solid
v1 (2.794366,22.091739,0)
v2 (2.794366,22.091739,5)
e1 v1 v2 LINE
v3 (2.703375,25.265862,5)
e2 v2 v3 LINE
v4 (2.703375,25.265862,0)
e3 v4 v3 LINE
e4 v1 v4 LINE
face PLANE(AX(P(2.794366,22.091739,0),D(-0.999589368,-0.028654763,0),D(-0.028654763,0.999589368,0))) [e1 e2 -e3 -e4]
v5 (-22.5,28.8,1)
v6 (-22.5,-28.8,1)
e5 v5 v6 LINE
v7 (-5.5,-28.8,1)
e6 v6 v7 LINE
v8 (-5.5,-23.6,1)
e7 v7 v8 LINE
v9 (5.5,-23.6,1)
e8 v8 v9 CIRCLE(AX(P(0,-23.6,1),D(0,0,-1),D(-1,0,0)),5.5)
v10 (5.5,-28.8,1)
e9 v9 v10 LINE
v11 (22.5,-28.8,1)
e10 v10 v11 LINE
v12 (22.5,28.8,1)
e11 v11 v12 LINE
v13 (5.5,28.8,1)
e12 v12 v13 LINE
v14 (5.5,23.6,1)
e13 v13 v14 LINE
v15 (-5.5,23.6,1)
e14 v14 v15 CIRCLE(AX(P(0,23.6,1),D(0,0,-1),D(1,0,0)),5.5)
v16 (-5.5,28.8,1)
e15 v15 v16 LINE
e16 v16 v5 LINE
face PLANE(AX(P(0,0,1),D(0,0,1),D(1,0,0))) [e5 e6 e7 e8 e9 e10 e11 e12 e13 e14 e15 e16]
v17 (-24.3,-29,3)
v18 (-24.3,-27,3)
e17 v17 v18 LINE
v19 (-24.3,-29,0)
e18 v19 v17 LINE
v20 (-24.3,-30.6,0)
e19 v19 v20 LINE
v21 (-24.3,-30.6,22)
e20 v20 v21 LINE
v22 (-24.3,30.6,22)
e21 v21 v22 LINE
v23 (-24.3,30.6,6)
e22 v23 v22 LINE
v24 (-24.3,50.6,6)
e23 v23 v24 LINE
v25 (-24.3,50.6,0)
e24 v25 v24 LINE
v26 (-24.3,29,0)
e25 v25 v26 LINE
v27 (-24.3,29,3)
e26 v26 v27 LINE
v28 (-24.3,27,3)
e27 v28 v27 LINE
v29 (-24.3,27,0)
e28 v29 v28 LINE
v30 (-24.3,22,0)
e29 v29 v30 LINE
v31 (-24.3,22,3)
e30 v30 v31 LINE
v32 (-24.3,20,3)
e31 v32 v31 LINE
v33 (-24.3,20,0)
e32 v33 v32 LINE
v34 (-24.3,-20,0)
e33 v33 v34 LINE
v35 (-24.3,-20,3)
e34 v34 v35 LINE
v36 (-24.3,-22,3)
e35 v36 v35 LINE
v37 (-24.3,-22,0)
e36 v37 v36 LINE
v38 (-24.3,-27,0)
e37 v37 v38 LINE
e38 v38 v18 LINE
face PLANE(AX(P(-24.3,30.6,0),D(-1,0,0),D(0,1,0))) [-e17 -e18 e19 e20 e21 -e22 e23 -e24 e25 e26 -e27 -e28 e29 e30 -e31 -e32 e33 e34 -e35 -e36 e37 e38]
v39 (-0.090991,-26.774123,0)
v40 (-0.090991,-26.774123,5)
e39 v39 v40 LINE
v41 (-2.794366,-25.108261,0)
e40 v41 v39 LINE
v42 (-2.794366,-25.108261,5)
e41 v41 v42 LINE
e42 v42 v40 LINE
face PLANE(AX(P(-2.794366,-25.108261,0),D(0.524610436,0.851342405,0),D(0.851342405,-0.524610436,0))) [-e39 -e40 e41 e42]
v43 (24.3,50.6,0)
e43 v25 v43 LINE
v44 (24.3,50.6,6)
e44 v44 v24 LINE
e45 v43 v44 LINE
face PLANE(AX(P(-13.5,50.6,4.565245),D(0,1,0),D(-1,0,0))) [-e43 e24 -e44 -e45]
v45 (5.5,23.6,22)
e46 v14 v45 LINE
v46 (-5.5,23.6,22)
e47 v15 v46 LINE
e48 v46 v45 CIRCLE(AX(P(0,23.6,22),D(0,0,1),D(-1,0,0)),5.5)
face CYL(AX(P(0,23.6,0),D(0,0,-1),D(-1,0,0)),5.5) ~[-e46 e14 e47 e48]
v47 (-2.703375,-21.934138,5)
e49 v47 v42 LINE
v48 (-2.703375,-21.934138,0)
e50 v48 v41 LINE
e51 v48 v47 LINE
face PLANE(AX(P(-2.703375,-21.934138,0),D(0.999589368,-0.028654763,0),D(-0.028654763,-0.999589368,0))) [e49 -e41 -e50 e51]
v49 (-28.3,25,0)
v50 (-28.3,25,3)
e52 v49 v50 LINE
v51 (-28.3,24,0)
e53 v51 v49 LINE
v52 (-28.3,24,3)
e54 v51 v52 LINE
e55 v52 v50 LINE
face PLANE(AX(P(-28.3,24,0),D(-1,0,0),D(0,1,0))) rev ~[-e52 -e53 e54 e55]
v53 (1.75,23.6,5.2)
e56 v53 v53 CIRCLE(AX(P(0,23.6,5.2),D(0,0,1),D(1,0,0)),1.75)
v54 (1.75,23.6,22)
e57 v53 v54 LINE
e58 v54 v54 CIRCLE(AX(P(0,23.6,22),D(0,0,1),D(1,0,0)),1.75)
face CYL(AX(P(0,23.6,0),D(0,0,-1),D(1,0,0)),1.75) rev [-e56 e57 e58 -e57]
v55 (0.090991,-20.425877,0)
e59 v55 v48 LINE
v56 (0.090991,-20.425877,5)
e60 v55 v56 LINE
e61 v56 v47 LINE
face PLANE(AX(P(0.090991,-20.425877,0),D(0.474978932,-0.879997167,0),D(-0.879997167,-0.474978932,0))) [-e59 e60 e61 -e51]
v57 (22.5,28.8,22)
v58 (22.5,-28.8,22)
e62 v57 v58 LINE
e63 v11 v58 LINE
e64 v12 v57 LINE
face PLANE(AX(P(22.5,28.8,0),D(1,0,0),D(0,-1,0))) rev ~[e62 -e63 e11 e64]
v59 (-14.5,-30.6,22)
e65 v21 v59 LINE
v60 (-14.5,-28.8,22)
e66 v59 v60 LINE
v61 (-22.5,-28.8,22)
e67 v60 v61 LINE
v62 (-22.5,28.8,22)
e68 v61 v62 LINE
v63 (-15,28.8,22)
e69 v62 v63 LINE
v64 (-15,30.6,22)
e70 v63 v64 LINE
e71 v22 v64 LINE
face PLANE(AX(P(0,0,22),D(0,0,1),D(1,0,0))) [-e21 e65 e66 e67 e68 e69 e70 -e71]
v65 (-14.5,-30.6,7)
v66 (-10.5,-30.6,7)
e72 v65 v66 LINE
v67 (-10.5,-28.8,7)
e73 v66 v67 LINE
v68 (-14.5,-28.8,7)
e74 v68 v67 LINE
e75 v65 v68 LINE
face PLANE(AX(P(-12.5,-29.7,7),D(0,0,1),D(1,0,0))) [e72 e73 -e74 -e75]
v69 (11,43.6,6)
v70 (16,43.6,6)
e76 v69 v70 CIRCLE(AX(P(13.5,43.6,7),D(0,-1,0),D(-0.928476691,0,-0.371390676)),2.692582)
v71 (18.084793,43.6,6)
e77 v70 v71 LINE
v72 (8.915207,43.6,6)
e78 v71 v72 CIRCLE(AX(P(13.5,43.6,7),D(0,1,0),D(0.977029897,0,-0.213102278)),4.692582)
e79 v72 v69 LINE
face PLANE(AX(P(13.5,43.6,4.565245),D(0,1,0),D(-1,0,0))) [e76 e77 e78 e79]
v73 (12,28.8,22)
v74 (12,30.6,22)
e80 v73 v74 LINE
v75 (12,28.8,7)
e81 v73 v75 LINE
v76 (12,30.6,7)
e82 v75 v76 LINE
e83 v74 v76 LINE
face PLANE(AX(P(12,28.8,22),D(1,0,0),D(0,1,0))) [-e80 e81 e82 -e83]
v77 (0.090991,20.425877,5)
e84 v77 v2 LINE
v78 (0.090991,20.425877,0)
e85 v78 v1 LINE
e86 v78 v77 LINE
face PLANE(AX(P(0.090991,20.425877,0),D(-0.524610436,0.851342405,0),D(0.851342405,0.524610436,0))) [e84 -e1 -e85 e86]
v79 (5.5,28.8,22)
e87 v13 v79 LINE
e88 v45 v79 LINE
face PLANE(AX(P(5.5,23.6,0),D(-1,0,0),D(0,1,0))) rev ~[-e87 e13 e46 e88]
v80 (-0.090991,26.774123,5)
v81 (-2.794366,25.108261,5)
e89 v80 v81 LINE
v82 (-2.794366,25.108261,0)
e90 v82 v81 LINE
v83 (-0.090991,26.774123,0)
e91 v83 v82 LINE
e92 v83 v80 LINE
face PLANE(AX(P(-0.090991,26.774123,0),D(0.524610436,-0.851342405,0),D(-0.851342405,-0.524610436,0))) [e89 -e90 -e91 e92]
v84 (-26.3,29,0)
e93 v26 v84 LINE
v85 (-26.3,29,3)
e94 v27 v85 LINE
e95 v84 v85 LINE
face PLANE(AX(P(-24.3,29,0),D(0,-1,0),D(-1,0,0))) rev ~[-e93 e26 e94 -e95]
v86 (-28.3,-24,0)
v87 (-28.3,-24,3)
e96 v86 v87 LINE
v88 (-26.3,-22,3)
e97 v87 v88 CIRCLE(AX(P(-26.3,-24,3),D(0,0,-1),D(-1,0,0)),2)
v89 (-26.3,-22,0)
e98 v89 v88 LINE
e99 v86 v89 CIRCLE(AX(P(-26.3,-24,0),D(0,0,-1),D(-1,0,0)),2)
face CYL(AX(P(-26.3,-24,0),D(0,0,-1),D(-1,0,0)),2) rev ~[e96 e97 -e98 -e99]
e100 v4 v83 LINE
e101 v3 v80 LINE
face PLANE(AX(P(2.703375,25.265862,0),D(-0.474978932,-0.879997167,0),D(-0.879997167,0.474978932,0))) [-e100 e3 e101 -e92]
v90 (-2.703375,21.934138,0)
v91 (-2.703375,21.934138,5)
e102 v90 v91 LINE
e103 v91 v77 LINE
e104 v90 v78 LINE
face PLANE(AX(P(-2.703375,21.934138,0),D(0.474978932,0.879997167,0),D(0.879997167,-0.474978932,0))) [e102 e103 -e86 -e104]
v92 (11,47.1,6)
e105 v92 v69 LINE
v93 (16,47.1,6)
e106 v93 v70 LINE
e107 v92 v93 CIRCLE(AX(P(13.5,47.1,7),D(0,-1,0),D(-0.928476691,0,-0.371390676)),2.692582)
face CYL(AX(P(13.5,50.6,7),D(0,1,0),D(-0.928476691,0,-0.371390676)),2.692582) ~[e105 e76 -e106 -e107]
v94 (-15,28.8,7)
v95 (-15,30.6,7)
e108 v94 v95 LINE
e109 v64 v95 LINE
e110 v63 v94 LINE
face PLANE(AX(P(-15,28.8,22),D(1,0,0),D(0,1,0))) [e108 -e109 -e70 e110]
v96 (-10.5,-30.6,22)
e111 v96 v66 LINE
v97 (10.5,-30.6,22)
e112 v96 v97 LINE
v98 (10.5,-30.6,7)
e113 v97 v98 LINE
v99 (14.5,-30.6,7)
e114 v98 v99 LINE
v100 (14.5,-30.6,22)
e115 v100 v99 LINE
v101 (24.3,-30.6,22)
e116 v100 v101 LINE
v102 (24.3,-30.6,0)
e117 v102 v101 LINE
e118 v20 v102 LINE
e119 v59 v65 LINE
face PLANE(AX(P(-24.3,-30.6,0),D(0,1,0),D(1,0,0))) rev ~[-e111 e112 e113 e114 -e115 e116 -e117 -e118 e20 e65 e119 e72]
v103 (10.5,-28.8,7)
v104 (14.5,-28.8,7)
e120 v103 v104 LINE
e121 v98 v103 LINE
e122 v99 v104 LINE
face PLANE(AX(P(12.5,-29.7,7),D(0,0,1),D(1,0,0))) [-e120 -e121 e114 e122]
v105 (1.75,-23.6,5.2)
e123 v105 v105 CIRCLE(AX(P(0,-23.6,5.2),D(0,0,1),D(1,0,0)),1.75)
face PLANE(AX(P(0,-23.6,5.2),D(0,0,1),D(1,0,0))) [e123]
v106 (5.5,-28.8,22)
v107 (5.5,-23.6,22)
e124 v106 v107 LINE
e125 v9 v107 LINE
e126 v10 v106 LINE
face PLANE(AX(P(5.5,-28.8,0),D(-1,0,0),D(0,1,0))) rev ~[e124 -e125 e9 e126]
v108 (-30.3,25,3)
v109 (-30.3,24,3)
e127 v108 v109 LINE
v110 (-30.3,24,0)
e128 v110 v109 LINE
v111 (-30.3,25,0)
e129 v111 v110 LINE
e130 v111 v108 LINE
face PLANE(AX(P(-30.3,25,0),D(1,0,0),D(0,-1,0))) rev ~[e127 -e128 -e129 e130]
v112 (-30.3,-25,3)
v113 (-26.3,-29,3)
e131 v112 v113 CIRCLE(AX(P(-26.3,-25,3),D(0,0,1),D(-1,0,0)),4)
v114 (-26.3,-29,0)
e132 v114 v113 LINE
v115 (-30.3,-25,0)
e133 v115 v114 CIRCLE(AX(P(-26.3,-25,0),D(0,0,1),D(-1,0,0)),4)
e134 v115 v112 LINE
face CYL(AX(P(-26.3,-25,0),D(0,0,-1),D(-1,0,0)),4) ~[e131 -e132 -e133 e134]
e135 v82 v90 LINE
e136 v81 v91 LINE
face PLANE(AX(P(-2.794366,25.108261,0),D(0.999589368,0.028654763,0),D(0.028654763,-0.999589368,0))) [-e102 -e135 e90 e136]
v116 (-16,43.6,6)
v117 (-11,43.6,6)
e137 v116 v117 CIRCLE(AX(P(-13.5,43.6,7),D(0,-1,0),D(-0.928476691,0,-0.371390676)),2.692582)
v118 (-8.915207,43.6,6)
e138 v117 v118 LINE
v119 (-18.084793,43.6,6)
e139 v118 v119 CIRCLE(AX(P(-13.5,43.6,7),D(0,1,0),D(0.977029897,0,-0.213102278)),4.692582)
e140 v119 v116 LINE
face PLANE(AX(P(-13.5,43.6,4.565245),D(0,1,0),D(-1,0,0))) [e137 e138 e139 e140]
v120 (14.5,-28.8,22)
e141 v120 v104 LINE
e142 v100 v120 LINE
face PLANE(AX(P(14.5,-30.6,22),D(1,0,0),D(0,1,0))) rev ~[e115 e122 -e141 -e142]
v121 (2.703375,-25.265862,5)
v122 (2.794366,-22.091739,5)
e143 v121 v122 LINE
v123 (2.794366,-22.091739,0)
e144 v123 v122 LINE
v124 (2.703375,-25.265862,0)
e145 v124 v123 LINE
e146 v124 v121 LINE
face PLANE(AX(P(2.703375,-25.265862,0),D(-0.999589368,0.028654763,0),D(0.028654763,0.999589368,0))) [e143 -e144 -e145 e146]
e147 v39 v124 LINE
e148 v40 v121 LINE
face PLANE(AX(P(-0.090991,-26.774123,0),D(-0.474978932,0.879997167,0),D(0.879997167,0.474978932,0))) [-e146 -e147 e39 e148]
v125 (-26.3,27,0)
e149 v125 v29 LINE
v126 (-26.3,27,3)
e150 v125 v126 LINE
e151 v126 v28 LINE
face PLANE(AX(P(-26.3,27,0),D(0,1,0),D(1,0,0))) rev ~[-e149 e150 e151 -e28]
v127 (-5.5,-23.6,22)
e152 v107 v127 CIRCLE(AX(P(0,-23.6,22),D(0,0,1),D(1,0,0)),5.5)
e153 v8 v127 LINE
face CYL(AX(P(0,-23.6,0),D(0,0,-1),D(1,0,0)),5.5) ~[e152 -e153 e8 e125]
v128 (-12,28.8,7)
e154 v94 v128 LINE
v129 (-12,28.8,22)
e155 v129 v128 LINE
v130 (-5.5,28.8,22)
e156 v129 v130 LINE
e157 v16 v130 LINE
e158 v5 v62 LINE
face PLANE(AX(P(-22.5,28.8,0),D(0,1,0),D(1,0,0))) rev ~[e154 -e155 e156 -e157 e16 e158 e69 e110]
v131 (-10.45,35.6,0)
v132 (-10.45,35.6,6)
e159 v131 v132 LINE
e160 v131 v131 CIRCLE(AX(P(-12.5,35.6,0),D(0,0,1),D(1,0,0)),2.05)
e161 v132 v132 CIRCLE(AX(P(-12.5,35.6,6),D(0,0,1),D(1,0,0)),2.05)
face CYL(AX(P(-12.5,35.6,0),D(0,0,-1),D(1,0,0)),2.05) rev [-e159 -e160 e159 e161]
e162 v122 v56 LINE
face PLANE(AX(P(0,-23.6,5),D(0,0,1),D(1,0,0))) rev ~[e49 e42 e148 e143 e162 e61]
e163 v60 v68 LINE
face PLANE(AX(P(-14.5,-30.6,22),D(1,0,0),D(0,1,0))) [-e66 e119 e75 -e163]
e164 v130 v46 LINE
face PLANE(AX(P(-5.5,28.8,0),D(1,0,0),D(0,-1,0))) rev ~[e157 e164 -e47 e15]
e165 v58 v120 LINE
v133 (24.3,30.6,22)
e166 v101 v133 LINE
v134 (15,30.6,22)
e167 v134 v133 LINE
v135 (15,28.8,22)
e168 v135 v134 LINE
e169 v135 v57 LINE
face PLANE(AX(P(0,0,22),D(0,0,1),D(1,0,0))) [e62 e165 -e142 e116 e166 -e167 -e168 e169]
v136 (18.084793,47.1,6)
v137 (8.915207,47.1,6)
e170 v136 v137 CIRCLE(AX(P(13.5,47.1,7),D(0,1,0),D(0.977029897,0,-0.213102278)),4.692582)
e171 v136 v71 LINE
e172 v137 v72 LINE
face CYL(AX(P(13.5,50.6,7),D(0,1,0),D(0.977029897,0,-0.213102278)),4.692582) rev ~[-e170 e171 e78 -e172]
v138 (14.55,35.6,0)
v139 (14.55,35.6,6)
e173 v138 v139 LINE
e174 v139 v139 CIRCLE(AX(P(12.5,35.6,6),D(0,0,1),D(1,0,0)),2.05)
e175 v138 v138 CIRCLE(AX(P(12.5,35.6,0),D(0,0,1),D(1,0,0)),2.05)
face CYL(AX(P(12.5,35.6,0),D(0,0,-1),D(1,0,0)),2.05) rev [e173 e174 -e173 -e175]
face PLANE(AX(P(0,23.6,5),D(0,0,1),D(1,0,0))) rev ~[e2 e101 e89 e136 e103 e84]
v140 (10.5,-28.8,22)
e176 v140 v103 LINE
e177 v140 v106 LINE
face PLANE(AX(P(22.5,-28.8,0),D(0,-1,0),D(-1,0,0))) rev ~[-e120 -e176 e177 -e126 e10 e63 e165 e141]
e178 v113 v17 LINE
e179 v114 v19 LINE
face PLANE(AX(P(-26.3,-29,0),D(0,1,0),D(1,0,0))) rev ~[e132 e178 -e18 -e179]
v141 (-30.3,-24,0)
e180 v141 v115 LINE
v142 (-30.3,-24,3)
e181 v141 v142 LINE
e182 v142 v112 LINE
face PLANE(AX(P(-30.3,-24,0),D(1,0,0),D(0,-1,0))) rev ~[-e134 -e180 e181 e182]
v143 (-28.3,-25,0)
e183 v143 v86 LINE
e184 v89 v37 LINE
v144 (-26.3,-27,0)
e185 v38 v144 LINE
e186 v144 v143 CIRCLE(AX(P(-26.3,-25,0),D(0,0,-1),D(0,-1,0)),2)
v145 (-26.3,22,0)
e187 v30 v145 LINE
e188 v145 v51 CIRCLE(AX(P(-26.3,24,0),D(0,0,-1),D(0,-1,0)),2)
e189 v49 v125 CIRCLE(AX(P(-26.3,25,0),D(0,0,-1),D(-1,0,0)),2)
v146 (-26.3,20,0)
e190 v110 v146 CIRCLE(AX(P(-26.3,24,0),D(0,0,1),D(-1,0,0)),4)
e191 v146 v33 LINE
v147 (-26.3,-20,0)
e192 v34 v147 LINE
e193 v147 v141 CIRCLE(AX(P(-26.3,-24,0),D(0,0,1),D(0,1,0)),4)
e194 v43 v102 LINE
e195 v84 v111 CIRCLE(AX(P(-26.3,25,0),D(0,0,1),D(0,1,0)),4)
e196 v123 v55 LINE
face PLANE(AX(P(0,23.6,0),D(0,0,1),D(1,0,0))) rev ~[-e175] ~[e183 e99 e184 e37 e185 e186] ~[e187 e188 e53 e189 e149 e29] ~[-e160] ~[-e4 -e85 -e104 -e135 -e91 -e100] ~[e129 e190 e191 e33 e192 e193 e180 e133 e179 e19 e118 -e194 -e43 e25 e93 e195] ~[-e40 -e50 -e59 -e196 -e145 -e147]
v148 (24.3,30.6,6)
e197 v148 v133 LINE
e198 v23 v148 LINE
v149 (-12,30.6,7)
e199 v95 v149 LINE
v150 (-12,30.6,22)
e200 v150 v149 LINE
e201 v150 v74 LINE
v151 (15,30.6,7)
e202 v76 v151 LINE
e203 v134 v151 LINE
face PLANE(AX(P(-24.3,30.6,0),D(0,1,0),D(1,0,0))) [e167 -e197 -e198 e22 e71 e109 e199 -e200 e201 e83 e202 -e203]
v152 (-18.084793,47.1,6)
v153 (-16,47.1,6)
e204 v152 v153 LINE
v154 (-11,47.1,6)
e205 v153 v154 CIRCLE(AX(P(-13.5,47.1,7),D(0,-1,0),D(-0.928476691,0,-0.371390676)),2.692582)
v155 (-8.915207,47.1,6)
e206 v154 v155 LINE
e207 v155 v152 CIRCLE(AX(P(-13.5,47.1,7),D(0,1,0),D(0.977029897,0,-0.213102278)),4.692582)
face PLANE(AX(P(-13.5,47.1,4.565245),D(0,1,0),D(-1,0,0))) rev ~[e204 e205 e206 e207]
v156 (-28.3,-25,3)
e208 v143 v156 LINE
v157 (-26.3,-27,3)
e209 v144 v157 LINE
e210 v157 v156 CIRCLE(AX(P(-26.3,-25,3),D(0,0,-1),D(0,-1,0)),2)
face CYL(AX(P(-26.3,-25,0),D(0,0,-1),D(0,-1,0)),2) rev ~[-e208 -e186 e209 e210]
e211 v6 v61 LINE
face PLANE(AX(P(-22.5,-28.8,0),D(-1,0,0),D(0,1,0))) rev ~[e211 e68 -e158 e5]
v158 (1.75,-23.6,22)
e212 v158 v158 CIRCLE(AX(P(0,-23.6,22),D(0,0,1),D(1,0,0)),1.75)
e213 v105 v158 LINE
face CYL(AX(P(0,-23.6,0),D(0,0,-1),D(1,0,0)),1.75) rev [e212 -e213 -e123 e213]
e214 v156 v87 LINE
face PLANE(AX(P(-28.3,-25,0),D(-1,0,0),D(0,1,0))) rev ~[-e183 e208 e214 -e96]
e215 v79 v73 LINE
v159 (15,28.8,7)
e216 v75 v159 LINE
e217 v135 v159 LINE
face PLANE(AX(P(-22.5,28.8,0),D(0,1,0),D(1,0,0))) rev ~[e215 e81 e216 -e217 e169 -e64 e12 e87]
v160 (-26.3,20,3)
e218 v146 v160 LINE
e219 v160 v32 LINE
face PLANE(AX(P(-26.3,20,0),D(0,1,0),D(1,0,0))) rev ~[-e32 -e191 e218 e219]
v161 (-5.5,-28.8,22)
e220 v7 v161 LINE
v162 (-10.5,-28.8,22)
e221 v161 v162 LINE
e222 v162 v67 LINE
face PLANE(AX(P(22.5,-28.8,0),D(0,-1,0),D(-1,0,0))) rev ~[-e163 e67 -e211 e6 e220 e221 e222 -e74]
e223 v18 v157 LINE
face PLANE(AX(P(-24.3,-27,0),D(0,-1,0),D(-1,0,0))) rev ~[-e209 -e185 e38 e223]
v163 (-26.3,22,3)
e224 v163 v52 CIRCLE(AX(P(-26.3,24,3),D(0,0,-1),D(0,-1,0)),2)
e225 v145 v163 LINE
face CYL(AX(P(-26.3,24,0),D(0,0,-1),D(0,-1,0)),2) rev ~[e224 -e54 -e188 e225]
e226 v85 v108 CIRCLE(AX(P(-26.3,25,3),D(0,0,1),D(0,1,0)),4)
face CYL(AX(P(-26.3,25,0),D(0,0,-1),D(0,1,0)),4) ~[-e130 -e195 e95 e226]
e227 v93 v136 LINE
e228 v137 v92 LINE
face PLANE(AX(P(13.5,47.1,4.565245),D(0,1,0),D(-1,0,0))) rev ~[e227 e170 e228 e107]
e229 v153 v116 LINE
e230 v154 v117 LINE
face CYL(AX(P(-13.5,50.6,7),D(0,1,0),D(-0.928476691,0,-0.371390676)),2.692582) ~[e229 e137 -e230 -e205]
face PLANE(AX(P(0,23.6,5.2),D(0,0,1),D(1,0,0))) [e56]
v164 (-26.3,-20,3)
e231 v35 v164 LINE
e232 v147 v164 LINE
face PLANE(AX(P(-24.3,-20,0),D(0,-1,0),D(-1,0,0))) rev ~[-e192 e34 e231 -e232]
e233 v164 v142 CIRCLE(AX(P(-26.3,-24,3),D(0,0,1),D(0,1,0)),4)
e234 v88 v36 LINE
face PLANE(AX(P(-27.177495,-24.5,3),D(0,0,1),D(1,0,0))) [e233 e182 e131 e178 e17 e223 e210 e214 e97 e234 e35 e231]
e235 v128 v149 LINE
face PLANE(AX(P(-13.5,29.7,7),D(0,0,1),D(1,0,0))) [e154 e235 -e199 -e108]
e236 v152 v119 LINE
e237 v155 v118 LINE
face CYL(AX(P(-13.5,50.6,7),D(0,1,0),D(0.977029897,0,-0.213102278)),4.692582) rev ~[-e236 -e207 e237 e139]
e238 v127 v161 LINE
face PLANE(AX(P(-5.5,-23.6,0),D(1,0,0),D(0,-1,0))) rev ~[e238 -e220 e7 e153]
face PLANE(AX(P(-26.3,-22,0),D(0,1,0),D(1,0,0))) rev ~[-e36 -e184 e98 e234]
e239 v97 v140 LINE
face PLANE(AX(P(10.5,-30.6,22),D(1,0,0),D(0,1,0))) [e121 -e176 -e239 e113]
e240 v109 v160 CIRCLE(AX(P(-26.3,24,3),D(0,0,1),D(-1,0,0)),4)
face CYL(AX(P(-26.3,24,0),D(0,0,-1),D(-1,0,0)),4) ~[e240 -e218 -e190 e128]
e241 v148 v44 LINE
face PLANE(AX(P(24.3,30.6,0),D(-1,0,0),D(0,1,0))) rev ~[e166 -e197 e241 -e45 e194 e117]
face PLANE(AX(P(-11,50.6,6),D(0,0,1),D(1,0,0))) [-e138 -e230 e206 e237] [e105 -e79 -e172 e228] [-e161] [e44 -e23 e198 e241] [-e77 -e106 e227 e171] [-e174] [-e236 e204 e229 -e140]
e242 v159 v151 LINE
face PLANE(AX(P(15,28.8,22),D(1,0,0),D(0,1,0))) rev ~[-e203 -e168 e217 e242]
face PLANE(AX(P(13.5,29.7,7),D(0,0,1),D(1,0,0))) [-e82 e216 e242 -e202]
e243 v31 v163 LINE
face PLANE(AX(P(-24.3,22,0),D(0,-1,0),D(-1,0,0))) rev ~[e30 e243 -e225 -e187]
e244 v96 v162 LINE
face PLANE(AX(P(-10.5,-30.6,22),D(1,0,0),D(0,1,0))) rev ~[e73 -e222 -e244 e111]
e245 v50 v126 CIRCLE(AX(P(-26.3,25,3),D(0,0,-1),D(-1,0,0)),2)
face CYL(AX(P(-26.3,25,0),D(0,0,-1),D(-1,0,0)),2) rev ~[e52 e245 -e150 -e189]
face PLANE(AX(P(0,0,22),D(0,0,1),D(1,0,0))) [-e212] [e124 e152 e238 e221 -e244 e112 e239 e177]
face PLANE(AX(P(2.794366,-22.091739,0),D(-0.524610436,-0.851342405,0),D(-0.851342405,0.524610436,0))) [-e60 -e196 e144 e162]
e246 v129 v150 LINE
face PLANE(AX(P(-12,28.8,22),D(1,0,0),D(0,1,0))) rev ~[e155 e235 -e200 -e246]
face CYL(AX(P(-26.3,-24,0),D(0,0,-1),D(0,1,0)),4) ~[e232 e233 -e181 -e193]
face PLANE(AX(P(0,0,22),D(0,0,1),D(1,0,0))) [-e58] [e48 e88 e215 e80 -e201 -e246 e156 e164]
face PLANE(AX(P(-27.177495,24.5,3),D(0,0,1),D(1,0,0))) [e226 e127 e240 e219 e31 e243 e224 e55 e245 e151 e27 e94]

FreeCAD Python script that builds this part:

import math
import FreeCAD as App
import Part
import Sketcher


def add_polygon(sketch, points):
    """Adds a closed chain of lines whose ends are joined by coincident constraints."""
    first, n = sketch.GeometryCount, len(points)
    for a, b in zip(points, points[1:] + points[:1]):
        sketch.addGeometry(Part.LineSegment(App.Vector(*a, 0), App.Vector(*b, 0)), False)
    for i in range(n):
        sketch.addConstraint(Sketcher.Constraint("Coincident", first + i, 2, first + (i + 1) % n, 1))

doc = App.newDocument("Part")
body = doc.addObject("PartDesign::Body", "Body")

# Sketch on XY plane
sketch1 = body.newObject("Sketcher::SketchObject", "Sketch")
sketch1.AttachmentSupport = (doc.getObject("XY_Plane"), [""])
sketch1.MapMode = "FlatFace"
add_polygon(sketch1, [(-24.3, 30.6), (-24.3, -30.6), (24.3, -30.6), (24.3, 30.6)])  # lines 0-3
add_polygon(sketch1, [(-22.5, 28.8), (22.5, 28.8), (22.5, -28.8), (-22.5, -28.8)])  # lines 4-7
sketch1.addConstraint([
    Sketcher.Constraint("Vertical", 0),
    Sketcher.Constraint("Horizontal", 1),
    Sketcher.Constraint("Vertical", 2),
    Sketcher.Constraint("Horizontal", 3),
    Sketcher.Constraint("Horizontal", 4),
    Sketcher.Constraint("Vertical", 5),
    Sketcher.Constraint("Horizontal", 6),
    Sketcher.Constraint("Vertical", 7),
    Sketcher.Constraint("Symmetric", 0, 2, 2, 2, -1, 1),
    Sketcher.Constraint("Symmetric", 4, 2, 6, 2, -1, 1),
    Sketcher.Constraint("DistanceX", 4, 1, 4, 2, 45.0),
    Sketcher.Constraint("DistanceX", 1, 1, 1, 2, 48.6),
    Sketcher.Constraint("DistanceY", 0, 2, 0, 1, 61.2),
    Sketcher.Constraint("DistanceY", 5, 2, 5, 1, 57.6),
])
pad1 = body.newObject("PartDesign::Pad", "Pad")
pad1.Profile = sketch1
pad1.Length = 22

# Sketch on XY plane
sketch2 = body.newObject("Sketcher::SketchObject", "Sketch001")
sketch2.AttachmentSupport = (doc.getObject("XY_Plane"), [""])
sketch2.MapMode = "FlatFace"
sketch2.addGeometry([
    Part.LineSegment(App.Vector(-5.5, -28.8, 0), App.Vector(5.5, -28.8, 0)),  # 0
    Part.LineSegment(App.Vector(5.5, -28.8, 0), App.Vector(5.5, -23.6, 0)),  # 1
    Part.ArcOfCircle(Part.Circle(App.Vector(0, -23.6, 0), App.Vector(0, 0, 1), 5.5), math.radians(0), math.radians(180)),  # 2
    Part.LineSegment(App.Vector(-5.5, -23.6, 0), App.Vector(-5.5, -28.8, 0)),  # 3
    Part.Circle(App.Vector(0, -23.6, 0), App.Vector(0, 0, 1), 1.75),  # 4
    Part.LineSegment(App.Vector(5.5, 23.6, 0), App.Vector(5.5, 28.8, 0)),  # 5
    Part.LineSegment(App.Vector(5.5, 28.8, 0), App.Vector(-5.5, 28.8, 0)),  # 6
    Part.LineSegment(App.Vector(-5.5, 28.8, 0), App.Vector(-5.5, 23.6, 0)),  # 7
    Part.ArcOfCircle(Part.Circle(App.Vector(0, 23.6, 0), App.Vector(0, 0, 1), 5.5), math.radians(180), math.radians(360)),  # 8
    Part.Circle(App.Vector(0, 23.6, 0), App.Vector(0, 0, 1), 1.75),  # 9
], False)
sketch2.addConstraint([
    Sketcher.Constraint("Coincident", 0, 2, 1, 1),
    Sketcher.Constraint("Tangent", 1, 2, 2, 1),
    Sketcher.Constraint("Tangent", 2, 2, 3, 1),
    Sketcher.Constraint("Coincident", 3, 2, 0, 1),
    Sketcher.Constraint("Coincident", 5, 2, 6, 1),
    Sketcher.Constraint("Coincident", 6, 2, 7, 1),
    Sketcher.Constraint("Tangent", 7, 2, 8, 1),
    Sketcher.Constraint("Tangent", 8, 2, 5, 1),
    Sketcher.Constraint("Horizontal", 0),
    Sketcher.Constraint("Vertical", 1),
    Sketcher.Constraint("Vertical", 3),
    Sketcher.Constraint("Vertical", 5),
    Sketcher.Constraint("Horizontal", 6),
    Sketcher.Constraint("Vertical", 7),
    Sketcher.Constraint("Coincident", 4, 3, 2, 3),
    Sketcher.Constraint("Coincident", 9, 3, 8, 3),
    Sketcher.Constraint("Equal", 2, 8),
    Sketcher.Constraint("Equal", 4, 9),
    Sketcher.Constraint("Symmetric", 2, 3, 8, 3, -1, 1),
    Sketcher.Constraint("Symmetric", 0, 2, 5, 2, -1),
    Sketcher.Constraint("Diameter", 4, 3.5),
    Sketcher.Constraint("Radius", 2, 5.5),
    Sketcher.Constraint("DistanceY", 1, 1, 1, 2, 5.2),
    Sketcher.Constraint("DistanceY", 2, 3, -1, 1, 23.6),
])
pad2 = body.newObject("PartDesign::Pad", "Pad001")
pad2.Profile = sketch2
pad2.Length = 22

# Sketch on XY plane
sketch3 = body.newObject("Sketcher::SketchObject", "Sketch002")
sketch3.AttachmentSupport = (doc.getObject("XY_Plane"), [""])
sketch3.MapMode = "FlatFace"
sketch3.addGeometry([
    Part.LineSegment(App.Vector(5.5, -28.8, 0), App.Vector(22.5, -28.8, 0)),  # 0
    Part.LineSegment(App.Vector(22.5, -28.8, 0), App.Vector(22.5, 28.8, 0)),  # 1
    Part.LineSegment(App.Vector(22.5, 28.8, 0), App.Vector(5.5, 28.8, 0)),  # 2
    Part.LineSegment(App.Vector(5.5, 28.8, 0), App.Vector(5.5, 23.6, 0)),  # 3
    Part.ArcOfCircle(Part.Circle(App.Vector(0, 23.6, 0), App.Vector(0, 0, 1), 5.5), math.radians(180), math.radians(360)),  # 4
    Part.LineSegment(App.Vector(-5.5, 23.6, 0), App.Vector(-5.5, 28.8, 0)),  # 5
    Part.LineSegment(App.Vector(-5.5, 28.8, 0), App.Vector(-22.5, 28.8, 0)),  # 6
    Part.LineSegment(App.Vector(-22.5, 28.8, 0), App.Vector(-22.5, -28.8, 0)),  # 7
    Part.LineSegment(App.Vector(-22.5, -28.8, 0), App.Vector(-5.5, -28.8, 0)),  # 8
    Part.LineSegment(App.Vector(-5.5, -28.8, 0), App.Vector(-5.5, -23.6, 0)),  # 9
    Part.ArcOfCircle(Part.Circle(App.Vector(0, -23.6, 0), App.Vector(0, 0, 1), 5.5), math.radians(0), math.radians(180)),  # 10
    Part.LineSegment(App.Vector(5.5, -23.6, 0), App.Vector(5.5, -28.8, 0)),  # 11
], False)
sketch3.addConstraint([
    Sketcher.Constraint("Coincident", 0, 2, 1, 1),
    Sketcher.Constraint("Coincident", 1, 2, 2, 1),
    Sketcher.Constraint("Coincident", 2, 2, 3, 1),
    Sketcher.Constraint("Tangent", 3, 2, 4, 2),
    Sketcher.Constraint("Tangent", 4, 1, 5, 1),
    Sketcher.Constraint("Coincident", 5, 2, 6, 1),
    Sketcher.Constraint("Coincident", 6, 2, 7, 1),
    Sketcher.Constraint("Coincident", 7, 2, 8, 1),
    Sketcher.Constraint("Coincident", 8, 2, 9, 1),
    Sketcher.Constraint("Tangent", 9, 2, 10, 2),
    Sketcher.Constraint("Tangent", 10, 1, 11, 1),
    Sketcher.Constraint("Coincident", 11, 2, 0, 1),
    Sketcher.Constraint("Horizontal", 0),
    Sketcher.Constraint("Vertical", 1),
    Sketcher.Constraint("Horizontal", 2),
    Sketcher.Constraint("Vertical", 3),
    Sketcher.Constraint("Vertical", 5),
    Sketcher.Constraint("Horizontal", 6),
    Sketcher.Constraint("Vertical", 7),
    Sketcher.Constraint("Horizontal", 8),
    Sketcher.Constraint("Vertical", 9),
    Sketcher.Constraint("Vertical", 11),
    Sketcher.Constraint("Equal", 4, 10),
    Sketcher.Constraint("Symmetric", 4, 3, 10, 3, -1, 1),
    Sketcher.Constraint("Symmetric", 0, 2, 6, 2, -1, 1),
    Sketcher.Constraint("Symmetric", 2, 2, 5, 2, -2),
    Sketcher.Constraint("Horizontal", 0, 2, 7, 2),
    Sketcher.Constraint("Radius", 4, 5.5),
    Sketcher.Constraint("DistanceX", 0, 1, 0, 2, 17.0),
    Sketcher.Constraint("DistanceY", 1, 1, 1, 2, 57.6),
    Sketcher.Constraint("DistanceY", 3, 2, 3, 1, 5.2),
])
pad3 = body.newObject("PartDesign::Pad", "Pad002")
pad3.Profile = sketch3
pad3.Length = 1

# Sketch on XY plane
sketch4 = body.newObject("Sketcher::SketchObject", "Sketch003")
sketch4.AttachmentSupport = (doc.getObject("XY_Plane"), [""])
sketch4.MapMode = "FlatFace"
add_polygon(sketch4, [(-24.3, 50.6), (-24.3, 30.6), (24.3, 30.6), (24.3, 50.6)])  # lines 0-3
sketch4.addGeometry(Part.Circle(App.Vector(-12.5, 35.6, 0), App.Vector(0, 0, 1), 2.05), False)  # 4
sketch4.addGeometry(Part.Circle(App.Vector(12.5, 35.6, 0), App.Vector(0, 0, 1), 2.05), False)  # 5
sketch4.addConstraint([
    Sketcher.Constraint("Vertical", 0),
    Sketcher.Constraint("Horizontal", 1),
    Sketcher.Constraint("Vertical", 2),
    Sketcher.Constraint("Horizontal", 3),
    Sketcher.Constraint("Equal", 4, 5),
    Sketcher.Constraint("Symmetric", 4, 3, 5, 3, -2),
    Sketcher.Constraint("Diameter", 4, 4.1),
    Sketcher.Constraint("DistanceY", 0, 2, 0, 1, 20.0),
    Sketcher.Constraint("DistanceX", 1, 1, 1, 2, 48.6),
    Sketcher.Constraint("DistanceX", 4, 3, 5, 3, 25.0),
    Sketcher.Constraint("DistanceY", 0, 2, 4, 3, 5.0),
    Sketcher.Constraint("DistanceY", -1, 1, 4, 3, 35.6),
    Sketcher.Constraint("DistanceX", 0, 2, -1, 1, 24.3),
])
pad4 = body.newObject("PartDesign::Pad", "Pad003")
pad4.Profile = sketch4
pad4.Length = 6

# Sketch on XY plane
sketch5 = body.newObject("Sketcher::SketchObject", "Sketch004")
sketch5.AttachmentSupport = (doc.getObject("XY_Plane"), [""])
sketch5.MapMode = "FlatFace"
sketch5.AttachmentOffset = App.Placement(App.Vector(0, 0, 22), App.Rotation())
add_polygon(sketch5, [(-15, 30.6), (-15, 28.8), (-12, 28.8), (-12, 30.6)])  # lines 0-3
add_polygon(sketch5, [(12, 30.6), (12, 28.8), (15, 28.8), (15, 30.6)])  # lines 4-7
add_polygon(sketch5, [(-14.5, -28.8), (-14.5, -30.6), (-10.5, -30.6), (-10.5, -28.8)])  # lines 8-11
add_polygon(sketch5, [(10.5, -28.8), (10.5, -30.6), (14.5, -30.6), (14.5, -28.8)])  # lines 12-15
sketch5.addConstraint([
    Sketcher.Constraint("Vertical", 0),
    Sketcher.Constraint("Horizontal", 1),
    Sketcher.Constraint("Vertical", 2),
    Sketcher.Constraint("Horizontal", 3),
    Sketcher.Constraint("Vertical", 4),
    Sketcher.Constraint("Horizontal", 5),
    Sketcher.Constraint("Vertical", 6),
    Sketcher.Constraint("Horizontal", 7),
    Sketcher.Constraint("Vertical", 8),
    Sketcher.Constraint("Horizontal", 9),
    Sketcher.Constraint("Vertical", 10),
    Sketcher.Constraint("Horizontal", 11),
    Sketcher.Constraint("Vertical", 12),
    Sketcher.Constraint("Horizontal", 13),
    Sketcher.Constraint("Vertical", 14),
    Sketcher.Constraint("Horizontal", 15),
    Sketcher.Constraint("Symmetric", 1, 2, 4, 2, -2),
    Sketcher.Constraint("Symmetric", 3, 2, 6, 2, -2),
    Sketcher.Constraint("Symmetric", 9, 2, 12, 2, -2),
    Sketcher.Constraint("Symmetric", 11, 2, 14, 2, -2),
    Sketcher.Constraint("Equal", 6, 8),
    Sketcher.Constraint("DistanceX", 1, 1, 1, 2, 3.0),
    Sketcher.Constraint("DistanceX", 9, 1, 9, 2, 4.0),
    Sketcher.Constraint("DistanceY", 0, 2, 0, 1, 1.8),
    Sketcher.Constraint("DistanceX", 0, 2, -1, 1, 15.0),
    Sketcher.Constraint("DistanceX", 9, 2, 12, 2, 21.0),
    Sketcher.Constraint("DistanceY", -1, 1, 0, 2, 28.8),
    Sketcher.Constraint("DistanceY", 8, 2, -1, 1, 30.6),
])
pocket1 = body.newObject("PartDesign::Pocket", "Pocket")
pocket1.Profile = sketch5
pocket1.Length = 15

# Sketch on XZ plane
sketch6 = body.newObject("Sketcher::SketchObject", "Sketch005")
sketch6.AttachmentSupport = (doc.getObject("XZ_Plane"), [""])
sketch6.MapMode = "FlatFace"
sketch6.AttachmentOffset = App.Placement(App.Vector(0, 0, -50.6), App.Rotation())
sketch6.addGeometry([
    Part.LineSegment(App.Vector(-11, 6, 0), App.Vector(-8.915207, 6, 0)),  # 0
    Part.ArcOfCircle(Part.Circle(App.Vector(-13.5, 7, 0), App.Vector(0, 0, 1), 4.692582), math.radians(-167.695784), math.radians(-12.304216)),  # 1
    Part.LineSegment(App.Vector(-18.084793, 6, 0), App.Vector(-16, 6, 0)),  # 2
    Part.ArcOfCircle(Part.Circle(App.Vector(-13.5, 7, 0), App.Vector(0, 0, 1), 2.692582), math.radians(-158.198591), math.radians(-21.801409)),  # 3
    Part.LineSegment(App.Vector(16, 6, 0), App.Vector(18.084793, 6, 0)),  # 4
    Part.ArcOfCircle(Part.Circle(App.Vector(13.5, 7, 0), App.Vector(0, 0, 1), 4.692582), math.radians(-167.695784), math.radians(-12.304216)),  # 5
    Part.LineSegment(App.Vector(8.915207, 6, 0), App.Vector(11, 6, 0)),  # 6
    Part.ArcOfCircle(Part.Circle(App.Vector(13.5, 7, 0), App.Vector(0, 0, 1), 2.692582), math.radians(-158.198591), math.radians(-21.801409)),  # 7
], False)
sketch6.addConstraint([
    Sketcher.Constraint("Coincident", 0, 2, 1, 2),
    Sketcher.Constraint("Coincident", 1, 1, 2, 1),
    Sketcher.Constraint("Coincident", 2, 2, 3, 1),
    Sketcher.Constraint("Coincident", 3, 2, 0, 1),
    Sketcher.Constraint("Coincident", 4, 2, 5, 2),
    Sketcher.Constraint("Coincident", 5, 1, 6, 1),
    Sketcher.Constraint("Coincident", 6, 2, 7, 1),
    Sketcher.Constraint("Coincident", 7, 2, 4, 1),
    Sketcher.Constraint("Horizontal", 0),
    Sketcher.Constraint("Horizontal", 2),
    Sketcher.Constraint("Horizontal", 4),
    Sketcher.Constraint("Horizontal", 6),
    Sketcher.Constraint("Coincident", 3, 3, 1, 3),
    Sketcher.Constraint("Coincident", 7, 3, 5, 3),
    Sketcher.Constraint("Equal", 1, 5),
    Sketcher.Constraint("Equal", 3, 7),
    Sketcher.Constraint("Symmetric", 1, 3, 5, 3, -2),
    Sketcher.Constraint("Horizontal", 0, 2, 1, 1),
    Sketcher.Constraint("Horizontal", 3, 2, 4, 2),
    Sketcher.Constraint("Horizontal", 4, 2, 5, 1),
    Sketcher.Constraint("DistanceY", -1, 1, 1, 3, 7.0),
    Sketcher.Constraint("DistanceY", -1, 1, 0, 2, 6.0),
    Sketcher.Constraint("DistanceX", 2, 2, -1, 1, 16.0),
    Sketcher.Constraint("DistanceX", 3, 2, -1, 1, 11.0),
    Sketcher.Constraint("Radius", 1, 4.692582),
])
pocket2 = body.newObject("PartDesign::Pocket", "Pocket001")
pocket2.Profile = sketch6
pocket2.Length = 7
pocket2.Reversed = True

# Sketch on XZ plane
sketch7 = body.newObject("Sketcher::SketchObject", "Sketch006")
sketch7.AttachmentSupport = (doc.getObject("XZ_Plane"), [""])
sketch7.MapMode = "FlatFace"
sketch7.AttachmentOffset = App.Placement(App.Vector(0, 0, -50.6), App.Rotation())
sketch7.addGeometry([
    Part.LineSegment(App.Vector(-11, 6, 0), App.Vector(-8.915207, 6, 0)),  # 0
    Part.ArcOfCircle(Part.Circle(App.Vector(-13.5, 7, 0), App.Vector(0, 0, 1), 4.692582), math.radians(-167.695784), math.radians(-12.304216)),  # 1
    Part.LineSegment(App.Vector(-18.084793, 6, 0), App.Vector(-16, 6, 0)),  # 2
    Part.ArcOfCircle(Part.Circle(App.Vector(-13.5, 7, 0), App.Vector(0, 0, 1), 2.692582), math.radians(-158.198591), math.radians(-21.801409)),  # 3
    Part.LineSegment(App.Vector(16, 6, 0), App.Vector(18.084793, 6, 0)),  # 4
    Part.ArcOfCircle(Part.Circle(App.Vector(13.5, 7, 0), App.Vector(0, 0, 1), 4.692582), math.radians(-167.695784), math.radians(-12.304216)),  # 5
    Part.LineSegment(App.Vector(8.915207, 6, 0), App.Vector(11, 6, 0)),  # 6
    Part.ArcOfCircle(Part.Circle(App.Vector(13.5, 7, 0), App.Vector(0, 0, 1), 2.692582), math.radians(-158.198591), math.radians(-21.801409)),  # 7
], False)
sketch7.addConstraint([
    Sketcher.Constraint("Coincident", 0, 2, 1, 2),
    Sketcher.Constraint("Coincident", 1, 1, 2, 1),
    Sketcher.Constraint("Coincident", 2, 2, 3, 1),
    Sketcher.Constraint("Coincident", 3, 2, 0, 1),
    Sketcher.Constraint("Coincident", 4, 2, 5, 2),
    Sketcher.Constraint("Coincident", 5, 1, 6, 1),
    Sketcher.Constraint("Coincident", 6, 2, 7, 1),
    Sketcher.Constraint("Coincident", 7, 2, 4, 1),
    Sketcher.Constraint("Horizontal", 0),
    Sketcher.Constraint("Horizontal", 2),
    Sketcher.Constraint("Horizontal", 4),
    Sketcher.Constraint("Horizontal", 6),
    Sketcher.Constraint("Coincident", 3, 3, 1, 3),
    Sketcher.Constraint("Coincident", 7, 3, 5, 3),
    Sketcher.Constraint("Equal", 1, 5),
    Sketcher.Constraint("Equal", 3, 7),
    Sketcher.Constraint("Symmetric", 1, 3, 5, 3, -2),
    Sketcher.Constraint("Horizontal", 0, 2, 1, 1),
    Sketcher.Constraint("Horizontal", 3, 2, 4, 2),
    Sketcher.Constraint("Horizontal", 4, 2, 5, 1),
    Sketcher.Constraint("DistanceY", -1, 1, 1, 3, 7.0),
    Sketcher.Constraint("DistanceY", -1, 1, 0, 2, 6.0),
    Sketcher.Constraint("DistanceX", 2, 2, -1, 1, 16.0),
    Sketcher.Constraint("DistanceX", 3, 2, -1, 1, 11.0),
    Sketcher.Constraint("Radius", 1, 4.692582),
])
pad5 = body.newObject("PartDesign::Pad", "Pad004")
pad5.Profile = sketch7
pad5.Length = 3.5

# Sketch on XY plane
sketch8 = body.newObject("Sketcher::SketchObject", "Sketch007")
sketch8.AttachmentSupport = (doc.getObject("XY_Plane"), [""])
sketch8.MapMode = "FlatFace"
sketch8.addGeometry([
    Part.Circle(App.Vector(0, 23.6, 0), App.Vector(0, 0, 1), 1.75),
    Part.Circle(App.Vector(0, -23.6, 0), App.Vector(0, 0, 1), 1.75),
], False)
sketch8.addConstraint([
    Sketcher.Constraint("Equal", 0, 1),
    Sketcher.Constraint("Symmetric", 0, 3, 1, 3, -1, 1),
    Sketcher.Constraint("PointOnObject", 0, 3, -2),
    Sketcher.Constraint("Diameter", 0, 3.5),
    Sketcher.Constraint("DistanceY", -1, 1, 0, 3, 23.6),
])
pad6 = body.newObject("PartDesign::Pad", "Pad005")
pad6.Profile = sketch8
pad6.Length = 5.2

# Sketch on XY plane
sketch9 = body.newObject("Sketcher::SketchObject", "Sketch008")
sketch9.AttachmentSupport = (doc.getObject("XY_Plane"), [""])
sketch9.MapMode = "FlatFace"
add_polygon(sketch9, [(-2.703375, 21.934138), (0.090991, 20.425877), (2.794366, 22.091739), (2.703375, 25.265862), (-0.090991, 26.774123), (-2.794366, 25.108261)])  # lines 0-5
add_polygon(sketch9, [(2.703375, -25.265862), (2.794366, -22.091739), (0.090991, -20.425877), (-2.703375, -21.934138), (-2.794366, -25.108261), (-0.090991, -26.774123)])  # lines 6-11
sketch9.addConstraint([
    Sketcher.Constraint("Symmetric", 1, 2, 6, 2, -1),
    Sketcher.Constraint("Symmetric", 0, 2, 7, 2, -1),
    Sketcher.Constraint("Symmetric", 5, 2, 8, 2, -1),
    Sketcher.Constraint("Symmetric", 4, 2, 9, 2, -1),
    Sketcher.Constraint("Symmetric", 3, 2, 10, 2, -1),
    Sketcher.Constraint("Symmetric", 2, 2, 11, 2, -1),
    Sketcher.Constraint("Parallel", 0, 3),
    Sketcher.Constraint("Parallel", 1, 4),
    Sketcher.Constraint("Parallel", 2, 5),
    Sketcher.Constraint("Equal", 0, 1),
    Sketcher.Constraint("Equal", 1, 2),
    Sketcher.Constraint("Equal", 2, 3),
    Sketcher.Constraint("DistanceY", 6, 2, 4, 2, 47.2),
    Sketcher.Constraint("DistanceY", 4, 2, 2, 2, 0.157601),
    Sketcher.Constraint("DistanceX", -1, 1, 0, 2, 0.090991),
    Sketcher.Constraint("DistanceY", -1, 1, 1, 2, 22.091739),
    Sketcher.Constraint("DistanceX", 3, 2, -1, 1, 0.090991),
    Sketcher.Constraint("DistanceY", 0, 2, 1, 2, 1.665862),
])
pocket3 = body.newObject("PartDesign::Pocket", "Pocket002")
pocket3.Profile = sketch9
pocket3.Length = 5
pocket3.Reversed = True

# Sketch on XY plane
sketch10 = body.newObject("Sketcher::SketchObject", "Sketch009")
sketch10.AttachmentSupport = (doc.getObject("XY_Plane"), [""])
sketch10.MapMode = "FlatFace"
sketch10.addGeometry([
    Part.LineSegment(App.Vector(-26.3, -29, 0), App.Vector(-24.3, -29, 0)),  # 0
    Part.LineSegment(App.Vector(-24.3, -29, 0), App.Vector(-24.3, -27, 0)),  # 1
    Part.LineSegment(App.Vector(-24.3, -27, 0), App.Vector(-26.3, -27, 0)),  # 2
    Part.ArcOfCircle(Part.Circle(App.Vector(-26.3, -25, 0), App.Vector(0, 0, 1), 2), math.radians(180), math.radians(270)),  # 3
    Part.LineSegment(App.Vector(-28.3, -25, 0), App.Vector(-28.3, -24, 0)),  # 4
    Part.ArcOfCircle(Part.Circle(App.Vector(-26.3, -24, 0), App.Vector(0, 0, 1), 2), math.radians(90), math.radians(180)),  # 5
    Part.LineSegment(App.Vector(-26.3, -22, 0), App.Vector(-24.3, -22, 0)),  # 6
    Part.LineSegment(App.Vector(-24.3, -22, 0), App.Vector(-24.3, -20, 0)),  # 7
    Part.LineSegment(App.Vector(-24.3, -20, 0), App.Vector(-26.3, -20, 0)),  # 8
    Part.ArcOfCircle(Part.Circle(App.Vector(-26.3, -24, 0), App.Vector(0, 0, 1), 4), math.radians(90), math.radians(180)),  # 9
    Part.LineSegment(App.Vector(-30.3, -24, 0), App.Vector(-30.3, -25, 0)),  # 10
    Part.ArcOfCircle(Part.Circle(App.Vector(-26.3, -25, 0), App.Vector(0, 0, 1), 4), math.radians(180), math.radians(270)),  # 11
    Part.LineSegment(App.Vector(-26.3, 20, 0), App.Vector(-24.3, 20, 0)),  # 12
    Part.LineSegment(App.Vector(-24.3, 20, 0), App.Vector(-24.3, 22, 0)),  # 13
    Part.LineSegment(App.Vector(-24.3, 22, 0), App.Vector(-26.3, 22, 0)),  # 14
    Part.ArcOfCircle(Part.Circle(App.Vector(-26.3, 24, 0), App.Vector(0, 0, 1), 2), math.radians(180), math.radians(270)),  # 15
    Part.LineSegment(App.Vector(-28.3, 24, 0), App.Vector(-28.3, 25, 0)),  # 16
    Part.ArcOfCircle(Part.Circle(App.Vector(-26.3, 25, 0), App.Vector(0, 0, 1), 2), math.radians(90), math.radians(180)),  # 17
    Part.LineSegment(App.Vector(-26.3, 27, 0), App.Vector(-24.3, 27, 0)),  # 18
    Part.LineSegment(App.Vector(-24.3, 27, 0), App.Vector(-24.3, 29, 0)),  # 19
    Part.LineSegment(App.Vector(-24.3, 29, 0), App.Vector(-26.3, 29, 0)),  # 20
    Part.ArcOfCircle(Part.Circle(App.Vector(-26.3, 25, 0), App.Vector(0, 0, 1), 4), math.radians(90), math.radians(180)),  # 21
    Part.LineSegment(App.Vector(-30.3, 25, 0), App.Vector(-30.3, 24, 0)),  # 22
    Part.ArcOfCircle(Part.Circle(App.Vector(-26.3, 24, 0), App.Vector(0, 0, 1), 4), math.radians(180), math.radians(270)),  # 23
], False)
sketch10.addConstraint([
    Sketcher.Constraint("Coincident", 0, 2, 1, 1),
    Sketcher.Constraint("Coincident", 1, 2, 2, 1),
    Sketcher.Constraint("Tangent", 2, 2, 3, 2),
    Sketcher.Constraint("Tangent", 3, 1, 4, 1),
    Sketcher.Constraint("Tangent", 4, 2, 5, 2),
    Sketcher.Constraint("Tangent", 5, 1, 6, 1),
    Sketcher.Constraint("Coincident", 6, 2, 7, 1),
    Sketcher.Constraint("Coincident", 7, 2, 8, 1),
    Sketcher.Constraint("Tangent", 8, 2, 9, 1),
    Sketcher.Constraint("Tangent", 9, 2, 10, 1),
    Sketcher.Constraint("Tangent", 10, 2, 11, 1),
    Sketcher.Constraint("Tangent", 11, 2, 0, 1),
    Sketcher.Constraint("Coincident", 12, 2, 13, 1),
    Sketcher.Constraint("Coincident", 13, 2, 14, 1),
    Sketcher.Constraint("Tangent", 14, 2, 15, 2),
    Sketcher.Constraint("Tangent", 15, 1, 16, 1),
    Sketcher.Constraint("Tangent", 16, 2, 17, 2),
    Sketcher.Constraint("Tangent", 17, 1, 18, 1),
    Sketcher.Constraint("Coincident", 18, 2, 19, 1),
    Sketcher.Constraint("Coincident", 19, 2, 20, 1),
    Sketcher.Constraint("Tangent", 20, 2, 21, 1),
    Sketcher.Constraint("Tangent", 21, 2, 22, 1),
    Sketcher.Constraint("Tangent", 22, 2, 23, 1),
    Sketcher.Constraint("Tangent", 23, 2, 12, 1),
    Sketcher.Constraint("Horizontal", 0),
    Sketcher.Constraint("Vertical", 1),
    Sketcher.Constraint("Horizontal", 2),
    Sketcher.Constraint("Vertical", 4),
    Sketcher.Constraint("Horizontal", 6),
    Sketcher.Constraint("Vertical", 7),
    Sketcher.Constraint("Horizontal", 8),
    Sketcher.Constraint("Vertical", 10),
    Sketcher.Constraint("Horizontal", 12),
    Sketcher.Constraint("Vertical", 13),
    Sketcher.Constraint("Horizontal", 14),
    Sketcher.Constraint("Vertical", 16),
    Sketcher.Constraint("Horizontal", 18),
    Sketcher.Constraint("Vertical", 19),
    Sketcher.Constraint("Horizontal", 20),
    Sketcher.Constraint("Vertical", 22),
    Sketcher.Constraint("Coincident", 9, 3, 5, 3),
    Sketcher.Constraint("Coincident", 11, 3, 3, 3),
    Sketcher.Constraint("Coincident", 21, 3, 17, 3),
    Sketcher.Constraint("Coincident", 23, 3, 15, 3),
    Sketcher.Constraint("Equal", 3, 5),
    Sketcher.Constraint("Equal", 5, 15),
    Sketcher.Constraint("Equal", 15, 17),
    Sketcher.Constraint("Equal", 11, 21),
    Sketcher.Constraint("Symmetric", 5, 3, 15, 3, -1),
    Sketcher.Constraint("Symmetric", 1, 2, 18, 2, -1),
    Sketcher.Constraint("Vertical", 1, 2, 6, 2),
    Sketcher.Constraint("Vertical", 7, 2, 12, 2),
    Sketcher.Constraint("Equal", 20, 1),
    Sketcher.Constraint("Radius", 3, 2.0),
    Sketcher.Constraint("Radius", 9, 4.0),
    Sketcher.Constraint("DistanceY", 4, 1, 4, 2, 1.0),
    Sketcher.Constraint("DistanceY", 3, 3, -1, 1, 25.0),
    Sketcher.Constraint("DistanceX", 3, 3, -1, 1, 26.3),
])
pad7 = body.newObject("PartDesign::Pad", "Pad006")
pad7.Profile = sketch10
pad7.Length = 3

doc.recompute()
